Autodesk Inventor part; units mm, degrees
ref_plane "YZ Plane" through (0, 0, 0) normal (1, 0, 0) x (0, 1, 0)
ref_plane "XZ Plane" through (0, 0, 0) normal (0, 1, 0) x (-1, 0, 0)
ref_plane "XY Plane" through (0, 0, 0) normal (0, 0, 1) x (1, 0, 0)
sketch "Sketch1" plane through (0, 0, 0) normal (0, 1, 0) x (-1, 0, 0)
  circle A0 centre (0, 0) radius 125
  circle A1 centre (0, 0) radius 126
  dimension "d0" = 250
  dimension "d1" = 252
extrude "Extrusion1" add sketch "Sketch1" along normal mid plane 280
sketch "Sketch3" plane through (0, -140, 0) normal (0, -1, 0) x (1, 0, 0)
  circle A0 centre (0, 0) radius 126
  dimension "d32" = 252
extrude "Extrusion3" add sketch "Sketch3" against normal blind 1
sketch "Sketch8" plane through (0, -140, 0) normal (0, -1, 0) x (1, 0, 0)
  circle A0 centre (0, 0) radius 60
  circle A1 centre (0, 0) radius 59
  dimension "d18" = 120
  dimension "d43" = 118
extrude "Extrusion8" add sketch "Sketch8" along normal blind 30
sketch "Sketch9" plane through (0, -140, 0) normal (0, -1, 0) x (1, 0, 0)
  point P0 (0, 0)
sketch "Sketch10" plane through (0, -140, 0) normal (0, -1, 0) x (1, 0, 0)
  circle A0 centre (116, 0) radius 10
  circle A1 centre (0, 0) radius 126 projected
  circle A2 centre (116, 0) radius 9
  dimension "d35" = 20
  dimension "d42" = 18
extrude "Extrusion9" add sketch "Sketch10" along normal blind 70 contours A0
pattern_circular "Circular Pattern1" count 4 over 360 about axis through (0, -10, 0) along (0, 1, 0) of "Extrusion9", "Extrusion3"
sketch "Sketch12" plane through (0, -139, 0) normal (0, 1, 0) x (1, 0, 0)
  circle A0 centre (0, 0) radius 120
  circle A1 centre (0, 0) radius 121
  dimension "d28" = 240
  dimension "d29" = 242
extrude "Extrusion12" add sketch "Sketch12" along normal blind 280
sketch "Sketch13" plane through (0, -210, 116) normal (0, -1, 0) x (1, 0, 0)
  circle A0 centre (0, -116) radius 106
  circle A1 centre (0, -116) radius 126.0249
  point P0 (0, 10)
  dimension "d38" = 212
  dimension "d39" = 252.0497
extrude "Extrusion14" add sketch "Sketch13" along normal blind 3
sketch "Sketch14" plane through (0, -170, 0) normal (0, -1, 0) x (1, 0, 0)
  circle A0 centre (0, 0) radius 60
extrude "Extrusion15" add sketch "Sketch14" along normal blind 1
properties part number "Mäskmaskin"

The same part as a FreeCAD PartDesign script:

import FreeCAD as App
import Part
import Sketcher
from FreeCAD import Vector
Q = App.Units.Quantity

doc = App.newDocument("Part")
params = doc.addObject("Spreadsheet::Sheet", "Params")
for row, (alias, value) in enumerate([
    ("sketch1_diameter", "252 mm"),
    ("sketch1_diameter2", "250 mm"),
    ("pad1_length", "280 mm"),
    ("sketch2_diameter", "252 mm"),
    ("pad2_length", "1 mm"),
    ("sketch3_diameter", "120 mm"),
    ("sketch3_diameter2", "118 mm"),
    ("pad3_length", "30 mm"),
    ("sketch4_diameter", "20 mm"),
    ("sketch4_diameter2", "18 mm"),
    ("pad4_length", "70 mm"),
    ("sketch5_diameter", "242 mm"),
    ("sketch5_diameter2", "240 mm"),
    ("pad5_length", "280 mm"),
    ("sketch6_diameter", "212 mm"),
    ("pad6_length", "3 mm"),
    ("sketch7_diameter", "120 mm"),
    ("pad7_length", "1 mm"),
], start=1):
    params.set(f"A{row}", alias)
    params.set(f"B{row}", "=" + value)
    params.setAlias(f"B{row}", alias)

body = doc.addObject("PartDesign::Body", "Body")

# Sketch on XZ plane
sketch1 = doc.addObject("Sketcher::SketchObject", "Sketch")
body.addObject(sketch1)
sketch1.AttachmentSupport = (doc.XZ_Plane, [""])
sketch1.MapMode = "FlatFace"
sketch1.addGeometry(Part.Circle(Vector(0, 0, 0), Vector(0, 0, 1), 126), False)
sketch1.addGeometry(Part.Circle(Vector(0, 0, 0), Vector(0, 0, 1), 125), False)
sketch1.addConstraint(Sketcher.Constraint("Coincident", 0, 3, -1, 1))
sketch1.addConstraint(Sketcher.Constraint("Coincident", 1, 3, -1, 1))
sketch1.addConstraint(Sketcher.Constraint("Diameter", 0, Q("252 mm")))
sketch1.addConstraint(Sketcher.Constraint("Diameter", 1, Q("250 mm")))
sketch1.setExpression("Constraints[2]", "Params.sketch1_diameter")
sketch1.setExpression("Constraints[3]", "Params.sketch1_diameter2")
pad1 = doc.addObject("PartDesign::Pad", "Pad")
body.addObject(pad1)
pad1.Profile = sketch1
pad1.setExpression("Length", "Params.pad1_length")
pad1.Midplane = True

# Sketch on XZ plane
sketch2 = doc.addObject("Sketcher::SketchObject", "Sketch001")
body.addObject(sketch2)
sketch2.AttachmentSupport = (doc.XZ_Plane, [""])
sketch2.MapMode = "FlatFace"
sketch2.AttachmentOffset = App.Placement(Vector(0, 0, 140), App.Rotation())
sketch2.addGeometry(Part.Circle(Vector(0, 0, 0), Vector(0, 0, 1), 126), False)
sketch2.addConstraint(Sketcher.Constraint("Coincident", 0, 3, -1, 1))
sketch2.addConstraint(Sketcher.Constraint("Diameter", 0, Q("252 mm")))
sketch2.setExpression("Constraints[1]", "Params.sketch2_diameter")
pad2 = doc.addObject("PartDesign::Pad", "Pad001")
body.addObject(pad2)
pad2.Profile = sketch2
pad2.setExpression("Length", "Params.pad2_length")
pad2.Reversed = True

# Sketch on XZ plane
sketch3 = doc.addObject("Sketcher::SketchObject", "Sketch002")
body.addObject(sketch3)
sketch3.AttachmentSupport = (doc.XZ_Plane, [""])
sketch3.MapMode = "FlatFace"
sketch3.AttachmentOffset = App.Placement(Vector(0, 0, 140), App.Rotation())
sketch3.addGeometry(Part.Circle(Vector(0, 0, 0), Vector(0, 0, 1), 60), False)
sketch3.addGeometry(Part.Circle(Vector(0, 0, 0), Vector(0, 0, 1), 59), False)
sketch3.addConstraint(Sketcher.Constraint("Coincident", 0, 3, -1, 1))
sketch3.addConstraint(Sketcher.Constraint("Coincident", 1, 3, -1, 1))
sketch3.addConstraint(Sketcher.Constraint("Diameter", 0, Q("120 mm")))
sketch3.addConstraint(Sketcher.Constraint("Diameter", 1, Q("118 mm")))
sketch3.setExpression("Constraints[2]", "Params.sketch3_diameter")
sketch3.setExpression("Constraints[3]", "Params.sketch3_diameter2")
pad3 = doc.addObject("PartDesign::Pad", "Pad002")
body.addObject(pad3)
pad3.Profile = sketch3
pad3.setExpression("Length", "Params.pad3_length")

# Sketch on XZ plane
sketch4 = doc.addObject("Sketcher::SketchObject", "Sketch003")
body.addObject(sketch4)
sketch4.AttachmentSupport = (doc.XZ_Plane, [""])
sketch4.MapMode = "FlatFace"
sketch4.AttachmentOffset = App.Placement(Vector(0, 0, 140), App.Rotation())
sketch4.addGeometry(Part.Circle(Vector(116, 0, 0), Vector(0, 0, 1), 10), False)
sketch4.addGeometry(Part.Circle(Vector(116, 0, 0), Vector(0, 0, 1), 9), False)
sketch4.addConstraint(Sketcher.Constraint("Coincident", 1, 3, 0, 3))
sketch4.addConstraint(Sketcher.Constraint("PointOnObject", 0, 3, -1))
sketch4.addConstraint(Sketcher.Constraint("Diameter", 0, Q("20 mm")))
sketch4.addConstraint(Sketcher.Constraint("Diameter", 1, Q("18 mm")))
sketch4.addConstraint(Sketcher.Constraint("DistanceX", -1, 1, 0, 3, Q("116 mm")))
sketch4.setExpression("Constraints[2]", "Params.sketch4_diameter")
sketch4.setExpression("Constraints[3]", "Params.sketch4_diameter2")
pad4 = doc.addObject("PartDesign::Pad", "Pad003")
body.addObject(pad4)
pad4.Profile = sketch4
pad4.setExpression("Length", "Params.pad4_length")
doc.recompute()

polarpattern = doc.addObject("PartDesign::PolarPattern", "PolarPattern")
body.addObject(polarpattern)
polarpattern.Originals = [pad4, pad2]
polarpattern.Axis = (doc.Y_Axis, [""])
polarpattern.Angle = 360
polarpattern.Occurrences = 4
body.Tip = polarpattern

# Sketch on XZ plane
sketch5 = doc.addObject("Sketcher::SketchObject", "Sketch004")
body.addObject(sketch5)
sketch5.AttachmentSupport = (doc.XZ_Plane, [""])
sketch5.MapMode = "FlatFace"
sketch5.AttachmentOffset = App.Placement(Vector(0, 0, 139), App.Rotation())
sketch5.addGeometry(Part.Circle(Vector(0, 0, 0), Vector(0, 0, 1), 121), False)
sketch5.addGeometry(Part.Circle(Vector(0, 0, 0), Vector(0, 0, 1), 120), False)
sketch5.addConstraint(Sketcher.Constraint("Coincident", 0, 3, -1, 1))
sketch5.addConstraint(Sketcher.Constraint("Coincident", 1, 3, -1, 1))
sketch5.addConstraint(Sketcher.Constraint("Diameter", 0, Q("242 mm")))
sketch5.addConstraint(Sketcher.Constraint("Diameter", 1, Q("240 mm")))
sketch5.setExpression("Constraints[2]", "Params.sketch5_diameter")
sketch5.setExpression("Constraints[3]", "Params.sketch5_diameter2")
pad5 = doc.addObject("PartDesign::Pad", "Pad004")
body.addObject(pad5)
pad5.Profile = sketch5
pad5.setExpression("Length", "Params.pad5_length")
pad5.Reversed = True

# Sketch on XZ plane
sketch6 = doc.addObject("Sketcher::SketchObject", "Sketch005")
body.addObject(sketch6)
sketch6.AttachmentSupport = (doc.XZ_Plane, [""])
sketch6.MapMode = "FlatFace"
sketch6.AttachmentOffset = App.Placement(Vector(0, 0, 210), App.Rotation())
sketch6.addGeometry(Part.Circle(Vector(0, 0, 0), Vector(0, 0, 1), 126), False)
sketch6.addGeometry(Part.Circle(Vector(0, 0, 0), Vector(0, 0, 1), 106), False)
sketch6.addConstraint(Sketcher.Constraint("Coincident", 0, 3, -1, 1))
sketch6.addConstraint(Sketcher.Constraint("Coincident", 1, 3, -1, 1))
sketch6.addConstraint(Sketcher.Constraint("Diameter", 1, Q("212 mm")))
sketch6.addConstraint(Sketcher.Constraint("Diameter", 0, Q("252.0498 mm")))
sketch6.setExpression("Constraints[2]", "Params.sketch6_diameter")
pad6 = doc.addObject("PartDesign::Pad", "Pad005")
body.addObject(pad6)
pad6.Profile = sketch6
pad6.setExpression("Length", "Params.pad6_length")

# Sketch on XZ plane
sketch7 = doc.addObject("Sketcher::SketchObject", "Sketch006")
body.addObject(sketch7)
sketch7.AttachmentSupport = (doc.XZ_Plane, [""])
sketch7.MapMode = "FlatFace"
sketch7.AttachmentOffset = App.Placement(Vector(0, 0, 170), App.Rotation())
sketch7.addGeometry(Part.Circle(Vector(0, 0, 0), Vector(0, 0, 1), 60), False)
sketch7.addConstraint(Sketcher.Constraint("Coincident", 0, 3, -1, 1))
sketch7.addConstraint(Sketcher.Constraint("Diameter", 0, Q("120 mm")))
sketch7.setExpression("Constraints[1]", "Params.sketch7_diameter")
pad7 = doc.addObject("PartDesign::Pad", "Pad006")
body.addObject(pad7)
pad7.Profile = sketch7
pad7.setExpression("Length", "Params.pad7_length")

doc.recompute()
